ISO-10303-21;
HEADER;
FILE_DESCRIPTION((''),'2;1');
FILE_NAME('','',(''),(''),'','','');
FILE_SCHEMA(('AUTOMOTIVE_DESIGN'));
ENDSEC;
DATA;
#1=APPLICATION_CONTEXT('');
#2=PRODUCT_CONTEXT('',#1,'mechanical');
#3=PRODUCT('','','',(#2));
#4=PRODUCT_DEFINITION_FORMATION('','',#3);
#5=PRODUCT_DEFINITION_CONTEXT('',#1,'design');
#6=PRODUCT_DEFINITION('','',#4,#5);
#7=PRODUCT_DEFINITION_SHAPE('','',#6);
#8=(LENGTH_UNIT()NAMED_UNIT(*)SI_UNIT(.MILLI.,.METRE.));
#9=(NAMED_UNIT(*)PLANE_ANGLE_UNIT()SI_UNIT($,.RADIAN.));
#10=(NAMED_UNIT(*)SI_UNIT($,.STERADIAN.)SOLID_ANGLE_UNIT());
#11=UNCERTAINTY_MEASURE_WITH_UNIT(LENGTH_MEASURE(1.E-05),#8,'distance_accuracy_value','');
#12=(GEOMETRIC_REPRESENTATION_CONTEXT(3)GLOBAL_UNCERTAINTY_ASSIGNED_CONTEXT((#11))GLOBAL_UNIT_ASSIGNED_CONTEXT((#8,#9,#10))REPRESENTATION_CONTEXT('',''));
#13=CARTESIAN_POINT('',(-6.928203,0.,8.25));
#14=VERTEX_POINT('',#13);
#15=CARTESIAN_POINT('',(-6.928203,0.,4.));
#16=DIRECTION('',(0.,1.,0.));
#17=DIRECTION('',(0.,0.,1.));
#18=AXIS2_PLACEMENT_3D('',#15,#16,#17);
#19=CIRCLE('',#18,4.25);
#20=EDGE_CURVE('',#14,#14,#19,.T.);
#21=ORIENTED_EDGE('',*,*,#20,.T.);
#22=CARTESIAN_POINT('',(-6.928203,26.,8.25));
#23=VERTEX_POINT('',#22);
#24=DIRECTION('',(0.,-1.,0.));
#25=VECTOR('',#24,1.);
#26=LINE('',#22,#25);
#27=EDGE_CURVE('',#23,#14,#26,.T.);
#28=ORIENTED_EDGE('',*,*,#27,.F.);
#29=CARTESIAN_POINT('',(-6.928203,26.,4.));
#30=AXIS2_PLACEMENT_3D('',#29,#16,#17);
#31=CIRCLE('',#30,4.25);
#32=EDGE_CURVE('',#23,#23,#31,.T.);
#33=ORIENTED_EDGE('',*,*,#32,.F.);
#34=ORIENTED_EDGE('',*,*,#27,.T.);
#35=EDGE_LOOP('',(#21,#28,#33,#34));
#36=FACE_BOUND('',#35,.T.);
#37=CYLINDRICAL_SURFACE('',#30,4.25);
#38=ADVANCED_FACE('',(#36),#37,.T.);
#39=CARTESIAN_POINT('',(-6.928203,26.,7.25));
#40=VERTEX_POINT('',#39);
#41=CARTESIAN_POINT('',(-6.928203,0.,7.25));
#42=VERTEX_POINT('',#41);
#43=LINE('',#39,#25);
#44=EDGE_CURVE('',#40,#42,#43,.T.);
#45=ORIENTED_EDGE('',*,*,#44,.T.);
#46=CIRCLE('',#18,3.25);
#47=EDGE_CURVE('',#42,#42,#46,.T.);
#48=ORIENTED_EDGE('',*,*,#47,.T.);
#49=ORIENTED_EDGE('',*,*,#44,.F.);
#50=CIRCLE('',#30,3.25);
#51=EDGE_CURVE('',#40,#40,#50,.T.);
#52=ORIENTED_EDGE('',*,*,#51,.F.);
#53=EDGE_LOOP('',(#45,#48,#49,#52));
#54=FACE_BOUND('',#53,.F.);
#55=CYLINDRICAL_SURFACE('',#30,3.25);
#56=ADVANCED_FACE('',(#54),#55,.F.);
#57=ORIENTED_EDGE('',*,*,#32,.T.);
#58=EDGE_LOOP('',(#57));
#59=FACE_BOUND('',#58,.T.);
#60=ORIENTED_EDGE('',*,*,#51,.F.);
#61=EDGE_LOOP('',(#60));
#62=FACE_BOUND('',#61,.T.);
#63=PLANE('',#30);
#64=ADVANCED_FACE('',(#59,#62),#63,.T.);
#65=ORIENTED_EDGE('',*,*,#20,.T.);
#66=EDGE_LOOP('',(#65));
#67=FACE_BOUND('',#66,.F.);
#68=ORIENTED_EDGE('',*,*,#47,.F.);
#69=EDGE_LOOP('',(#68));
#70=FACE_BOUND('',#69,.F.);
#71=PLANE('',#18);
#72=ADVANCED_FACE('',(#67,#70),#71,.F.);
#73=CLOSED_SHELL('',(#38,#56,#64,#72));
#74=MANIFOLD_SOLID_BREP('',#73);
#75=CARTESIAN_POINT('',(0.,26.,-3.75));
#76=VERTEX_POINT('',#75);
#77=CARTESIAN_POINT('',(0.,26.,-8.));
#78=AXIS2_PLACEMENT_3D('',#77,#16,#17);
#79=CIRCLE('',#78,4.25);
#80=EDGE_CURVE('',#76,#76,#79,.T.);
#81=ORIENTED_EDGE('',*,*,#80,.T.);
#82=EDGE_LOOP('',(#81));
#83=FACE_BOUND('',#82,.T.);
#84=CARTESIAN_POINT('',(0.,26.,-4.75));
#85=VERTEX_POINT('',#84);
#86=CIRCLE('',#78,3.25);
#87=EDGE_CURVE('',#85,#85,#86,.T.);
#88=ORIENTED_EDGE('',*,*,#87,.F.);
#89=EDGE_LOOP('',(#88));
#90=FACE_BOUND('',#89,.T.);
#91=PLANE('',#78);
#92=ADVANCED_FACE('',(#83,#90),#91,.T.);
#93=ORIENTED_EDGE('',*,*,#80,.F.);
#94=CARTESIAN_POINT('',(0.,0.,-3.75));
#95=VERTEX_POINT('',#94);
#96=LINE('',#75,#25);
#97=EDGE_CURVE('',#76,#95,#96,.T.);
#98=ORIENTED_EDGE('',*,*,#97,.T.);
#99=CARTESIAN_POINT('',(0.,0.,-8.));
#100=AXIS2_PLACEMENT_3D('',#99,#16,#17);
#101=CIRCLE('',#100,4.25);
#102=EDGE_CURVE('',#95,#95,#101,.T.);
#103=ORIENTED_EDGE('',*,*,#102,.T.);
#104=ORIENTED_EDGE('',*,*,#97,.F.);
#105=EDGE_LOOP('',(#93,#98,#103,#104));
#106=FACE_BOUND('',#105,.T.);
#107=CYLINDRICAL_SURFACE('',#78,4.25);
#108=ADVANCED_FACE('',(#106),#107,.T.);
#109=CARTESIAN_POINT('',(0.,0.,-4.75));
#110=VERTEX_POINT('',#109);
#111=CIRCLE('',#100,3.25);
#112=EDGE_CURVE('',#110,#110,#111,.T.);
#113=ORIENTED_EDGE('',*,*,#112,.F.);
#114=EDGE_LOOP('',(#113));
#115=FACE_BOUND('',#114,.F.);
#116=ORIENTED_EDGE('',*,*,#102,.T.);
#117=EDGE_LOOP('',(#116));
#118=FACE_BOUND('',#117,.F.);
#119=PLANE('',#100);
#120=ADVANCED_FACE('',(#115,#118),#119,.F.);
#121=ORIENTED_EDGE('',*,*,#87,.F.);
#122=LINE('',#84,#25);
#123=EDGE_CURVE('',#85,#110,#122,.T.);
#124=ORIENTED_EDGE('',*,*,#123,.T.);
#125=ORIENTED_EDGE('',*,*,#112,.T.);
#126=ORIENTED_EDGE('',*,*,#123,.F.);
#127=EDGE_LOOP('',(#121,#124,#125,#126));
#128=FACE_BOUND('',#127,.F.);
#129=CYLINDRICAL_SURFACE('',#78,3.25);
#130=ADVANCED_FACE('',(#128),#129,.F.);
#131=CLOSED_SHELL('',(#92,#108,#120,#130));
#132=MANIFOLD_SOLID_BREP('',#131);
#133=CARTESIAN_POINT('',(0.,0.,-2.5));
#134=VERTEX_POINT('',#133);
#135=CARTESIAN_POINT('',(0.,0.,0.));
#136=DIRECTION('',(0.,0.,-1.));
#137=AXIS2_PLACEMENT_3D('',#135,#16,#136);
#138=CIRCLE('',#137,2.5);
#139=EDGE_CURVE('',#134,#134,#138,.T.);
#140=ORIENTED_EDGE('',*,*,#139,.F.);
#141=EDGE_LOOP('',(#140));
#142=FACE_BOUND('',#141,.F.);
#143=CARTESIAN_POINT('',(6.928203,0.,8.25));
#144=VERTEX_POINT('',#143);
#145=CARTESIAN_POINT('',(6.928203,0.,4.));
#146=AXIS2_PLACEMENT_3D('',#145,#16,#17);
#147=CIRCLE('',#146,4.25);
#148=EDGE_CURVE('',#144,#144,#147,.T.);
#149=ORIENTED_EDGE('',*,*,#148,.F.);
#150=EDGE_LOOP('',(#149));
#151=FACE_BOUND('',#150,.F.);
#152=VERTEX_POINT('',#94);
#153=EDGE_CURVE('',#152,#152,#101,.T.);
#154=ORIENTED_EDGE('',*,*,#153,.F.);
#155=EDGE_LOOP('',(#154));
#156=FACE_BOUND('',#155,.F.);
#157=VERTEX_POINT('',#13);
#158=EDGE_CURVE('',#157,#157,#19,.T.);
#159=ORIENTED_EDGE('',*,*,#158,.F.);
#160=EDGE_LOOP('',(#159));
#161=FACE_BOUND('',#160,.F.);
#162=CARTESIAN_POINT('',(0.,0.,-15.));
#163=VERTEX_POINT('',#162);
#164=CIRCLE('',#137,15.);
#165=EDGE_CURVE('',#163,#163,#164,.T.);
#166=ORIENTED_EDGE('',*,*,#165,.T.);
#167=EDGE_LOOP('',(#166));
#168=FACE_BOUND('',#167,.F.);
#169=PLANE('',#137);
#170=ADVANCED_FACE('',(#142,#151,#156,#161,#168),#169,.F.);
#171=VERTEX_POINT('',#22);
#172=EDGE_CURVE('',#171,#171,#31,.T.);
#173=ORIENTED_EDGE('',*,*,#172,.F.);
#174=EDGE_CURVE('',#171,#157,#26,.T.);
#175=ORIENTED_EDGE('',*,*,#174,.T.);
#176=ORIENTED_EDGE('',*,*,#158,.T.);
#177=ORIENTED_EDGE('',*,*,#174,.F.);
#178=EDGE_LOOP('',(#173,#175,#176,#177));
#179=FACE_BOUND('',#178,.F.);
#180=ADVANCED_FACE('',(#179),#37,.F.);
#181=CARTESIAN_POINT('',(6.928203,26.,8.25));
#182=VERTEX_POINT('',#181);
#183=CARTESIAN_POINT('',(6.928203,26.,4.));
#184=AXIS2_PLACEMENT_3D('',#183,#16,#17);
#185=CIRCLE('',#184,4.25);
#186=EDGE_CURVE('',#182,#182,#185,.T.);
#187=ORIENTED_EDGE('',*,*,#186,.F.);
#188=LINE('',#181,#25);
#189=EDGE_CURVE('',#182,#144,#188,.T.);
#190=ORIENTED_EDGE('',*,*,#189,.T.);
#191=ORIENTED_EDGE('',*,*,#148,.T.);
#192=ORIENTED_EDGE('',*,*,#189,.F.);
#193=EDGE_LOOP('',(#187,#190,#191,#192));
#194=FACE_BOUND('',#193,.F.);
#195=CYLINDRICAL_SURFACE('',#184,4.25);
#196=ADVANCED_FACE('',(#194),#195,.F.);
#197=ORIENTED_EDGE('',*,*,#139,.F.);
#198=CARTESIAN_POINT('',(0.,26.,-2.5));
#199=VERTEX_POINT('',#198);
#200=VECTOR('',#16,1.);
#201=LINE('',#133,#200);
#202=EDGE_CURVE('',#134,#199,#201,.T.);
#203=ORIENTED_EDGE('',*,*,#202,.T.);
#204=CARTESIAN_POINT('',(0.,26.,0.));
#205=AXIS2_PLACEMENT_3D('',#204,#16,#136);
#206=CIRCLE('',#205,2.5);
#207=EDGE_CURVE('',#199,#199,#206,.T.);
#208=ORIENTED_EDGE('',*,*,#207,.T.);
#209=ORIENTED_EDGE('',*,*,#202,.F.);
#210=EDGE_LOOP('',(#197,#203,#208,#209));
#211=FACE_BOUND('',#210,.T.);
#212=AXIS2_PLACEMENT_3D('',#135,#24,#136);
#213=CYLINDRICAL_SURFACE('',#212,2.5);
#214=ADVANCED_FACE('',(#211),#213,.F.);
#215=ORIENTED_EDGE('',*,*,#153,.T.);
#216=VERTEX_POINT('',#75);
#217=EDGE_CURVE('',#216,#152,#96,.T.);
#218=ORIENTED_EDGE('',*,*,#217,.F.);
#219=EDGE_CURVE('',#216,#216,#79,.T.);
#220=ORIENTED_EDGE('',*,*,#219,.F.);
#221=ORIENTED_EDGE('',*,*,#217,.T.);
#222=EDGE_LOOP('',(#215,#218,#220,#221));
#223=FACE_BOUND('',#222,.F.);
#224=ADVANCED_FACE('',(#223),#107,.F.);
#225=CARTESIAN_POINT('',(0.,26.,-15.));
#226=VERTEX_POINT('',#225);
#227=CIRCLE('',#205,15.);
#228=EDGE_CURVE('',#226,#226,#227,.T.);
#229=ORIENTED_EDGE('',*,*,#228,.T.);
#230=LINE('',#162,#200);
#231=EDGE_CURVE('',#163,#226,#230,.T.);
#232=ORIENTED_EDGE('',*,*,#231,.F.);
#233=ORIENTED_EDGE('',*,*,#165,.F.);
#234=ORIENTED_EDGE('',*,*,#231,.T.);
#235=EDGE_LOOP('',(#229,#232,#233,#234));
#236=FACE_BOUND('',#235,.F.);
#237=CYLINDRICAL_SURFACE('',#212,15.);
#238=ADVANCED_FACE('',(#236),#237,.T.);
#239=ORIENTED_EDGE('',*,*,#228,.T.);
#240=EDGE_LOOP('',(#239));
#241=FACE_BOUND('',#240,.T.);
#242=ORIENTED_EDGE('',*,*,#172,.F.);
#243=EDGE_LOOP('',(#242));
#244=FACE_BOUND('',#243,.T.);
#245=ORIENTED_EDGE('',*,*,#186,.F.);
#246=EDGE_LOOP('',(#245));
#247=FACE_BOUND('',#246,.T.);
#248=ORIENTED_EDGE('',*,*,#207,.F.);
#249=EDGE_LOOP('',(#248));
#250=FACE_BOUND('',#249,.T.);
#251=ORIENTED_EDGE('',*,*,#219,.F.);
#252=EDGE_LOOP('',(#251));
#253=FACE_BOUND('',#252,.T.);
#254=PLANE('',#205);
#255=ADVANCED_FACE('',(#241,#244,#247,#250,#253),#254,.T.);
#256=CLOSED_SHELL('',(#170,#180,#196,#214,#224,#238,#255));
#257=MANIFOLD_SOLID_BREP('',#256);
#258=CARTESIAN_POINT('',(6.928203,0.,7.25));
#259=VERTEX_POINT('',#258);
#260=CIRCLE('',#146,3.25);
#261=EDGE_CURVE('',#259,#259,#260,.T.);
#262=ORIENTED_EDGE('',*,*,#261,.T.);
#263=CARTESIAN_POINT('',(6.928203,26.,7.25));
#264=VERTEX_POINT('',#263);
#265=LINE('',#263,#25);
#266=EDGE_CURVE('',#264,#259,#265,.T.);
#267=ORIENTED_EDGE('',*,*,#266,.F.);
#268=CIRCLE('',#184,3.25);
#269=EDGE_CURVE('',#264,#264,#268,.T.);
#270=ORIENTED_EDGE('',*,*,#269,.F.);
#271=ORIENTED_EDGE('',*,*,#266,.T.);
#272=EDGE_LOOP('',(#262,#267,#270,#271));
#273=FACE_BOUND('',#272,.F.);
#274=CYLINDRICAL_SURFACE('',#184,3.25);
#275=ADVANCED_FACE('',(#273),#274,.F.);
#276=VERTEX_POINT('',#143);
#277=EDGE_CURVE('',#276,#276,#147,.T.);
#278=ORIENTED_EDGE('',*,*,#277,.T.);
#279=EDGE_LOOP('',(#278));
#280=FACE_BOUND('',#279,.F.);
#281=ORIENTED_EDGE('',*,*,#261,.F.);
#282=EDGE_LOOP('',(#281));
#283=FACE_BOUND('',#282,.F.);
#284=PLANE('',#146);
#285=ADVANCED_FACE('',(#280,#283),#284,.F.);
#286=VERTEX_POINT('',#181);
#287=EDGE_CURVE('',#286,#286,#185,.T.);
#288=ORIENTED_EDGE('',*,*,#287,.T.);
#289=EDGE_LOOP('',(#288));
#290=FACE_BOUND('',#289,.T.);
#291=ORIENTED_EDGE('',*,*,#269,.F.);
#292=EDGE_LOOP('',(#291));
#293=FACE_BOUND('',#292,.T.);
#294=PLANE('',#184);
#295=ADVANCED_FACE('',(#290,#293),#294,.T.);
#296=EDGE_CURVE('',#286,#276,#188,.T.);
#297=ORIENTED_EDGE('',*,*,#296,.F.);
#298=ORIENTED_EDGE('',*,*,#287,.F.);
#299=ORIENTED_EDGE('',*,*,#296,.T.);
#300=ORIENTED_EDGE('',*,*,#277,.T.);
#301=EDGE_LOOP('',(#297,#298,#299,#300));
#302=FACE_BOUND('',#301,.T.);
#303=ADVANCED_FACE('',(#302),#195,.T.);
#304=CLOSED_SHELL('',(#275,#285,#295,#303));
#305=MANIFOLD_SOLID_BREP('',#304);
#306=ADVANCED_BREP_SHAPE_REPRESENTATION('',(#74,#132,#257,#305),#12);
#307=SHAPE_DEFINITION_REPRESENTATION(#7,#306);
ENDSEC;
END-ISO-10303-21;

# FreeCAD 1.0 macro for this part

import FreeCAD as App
import Part
import Sketcher
from FreeCAD import Vector
Q = App.Units.Quantity

doc = App.newDocument("Part")
params = doc.addObject("Spreadsheet::Sheet", "Params")
for row, (alias, value) in enumerate([
    ("sketch1_diameter", "30 mm"),
    ("sketch1_diameter2", "5 mm"),
    ("pad1_length", "26 mm"),
    ("sketch2_diameter", "8.5 mm"),
    ("sketch3_diameter", "8.5 mm"),
    ("sketch3_diameter2", "6.5 mm"),
    ("pad2_length", "26 mm"),
    ("sketch4_diameter", "8.5 mm"),
    ("sketch4_diameter2", "6.5 mm"),
    ("pad3_length", "26 mm"),
    ("sketch5_diameter", "8.5 mm"),
    ("sketch5_diameter2", "6.5 mm"),
    ("pad4_length", "26 mm"),
], start=1):
    params.set(f"A{row}", alias)
    params.set(f"B{row}", "=" + value)
    params.setAlias(f"B{row}", alias)

body = doc.addObject("PartDesign::Body", "Body")

# Sketch on XZ plane
sketch1 = body.newObject("Sketcher::SketchObject", "Sketch")
sketch1.AttachmentSupport = (doc.getObject("XZ_Plane"), [""])
sketch1.MapMode = "FlatFace"
sketch1.addGeometry([
    Part.Circle(Vector(0, 0, 0), Vector(0, 0, 1), 15),
    Part.Circle(Vector(0, 0, 0), Vector(0, 0, 1), 2.5),
], False)
sketch1.addConstraint([
    Sketcher.Constraint("Coincident", 0, 3, -1, 1),
    Sketcher.Constraint("Coincident", 1, 3, -1, 1),
    Sketcher.Constraint("Diameter", 0, Q("30 mm")),
    Sketcher.Constraint("Diameter", 1, Q("5 mm")),
])
sketch1.setExpression("Constraints[2]", "Params.sketch1_diameter")
sketch1.setExpression("Constraints[3]", "Params.sketch1_diameter2")
pad1 = body.newObject("PartDesign::Pad", "Pad")
pad1.Profile = sketch1
pad1.setExpression("Length", "Params.pad1_length")
pad1.Reversed = True

# Sketch on XZ plane
sketch2 = body.newObject("Sketcher::SketchObject", "Sketch001")
sketch2.AttachmentSupport = (doc.getObject("XZ_Plane"), [""])
sketch2.MapMode = "FlatFace"
sketch2.AttachmentOffset = App.Placement(Vector(0, 0, -26), App.Rotation())
sketch2.addGeometry([
    Part.Circle(Vector(0, -8, 0), Vector(0, 0, 1), 4.2),
    Part.Circle(Vector(6.9, 4, 0), Vector(0, 0, 1), 4.2),
    Part.Circle(Vector(-6.9, 4, 0), Vector(0, 0, 1), 4.2),
], False)
sketch2.addConstraint([
    Sketcher.Constraint("Equal", 0, 1),
    Sketcher.Constraint("Equal", 1, 2),
    Sketcher.Constraint("Symmetric", 1, 3, 2, 3, -2),
    Sketcher.Constraint("PointOnObject", 0, 3, -2),
    Sketcher.Constraint("Diameter", 0, Q("8.5 mm")),
    Sketcher.Constraint("DistanceY", 0, 3, -1, 1, Q("8 mm")),
    Sketcher.Constraint("DistanceY", -1, 1, 1, 3, Q("4 mm")),
    Sketcher.Constraint("DistanceX", -1, 1, 1, 3, Q("6.928203 mm")),
])
sketch2.setExpression("Constraints[4]", "Params.sketch2_diameter")
pocket1 = body.newObject("PartDesign::Pocket", "Pocket")
pocket1.Profile = sketch2
pocket1.Type = "ThroughAll"
pocket1.Reversed = True
body2 = doc.addObject("PartDesign::Body", "Body001")

# Sketch on XZ plane
sketch3 = body2.newObject("Sketcher::SketchObject", "Sketch002")
sketch3.AttachmentSupport = (doc.getObject("XZ_Plane001"), [""])
sketch3.MapMode = "FlatFace"
sketch3.AttachmentOffset = App.Placement(Vector(0, 0, -26), App.Rotation())
sketch3.addGeometry([
    Part.Circle(Vector(6.9, 4, 0), Vector(0, 0, 1), 4.2),
    Part.Circle(Vector(6.9, 4, 0), Vector(0, 0, 1), 3.2),
], False)
sketch3.addConstraint([
    Sketcher.Constraint("Coincident", 1, 3, 0, 3),
    Sketcher.Constraint("Diameter", 0, Q("8.5 mm")),
    Sketcher.Constraint("Diameter", 1, Q("6.5 mm")),
    Sketcher.Constraint("DistanceY", -1, 1, 0, 3, Q("4 mm")),
    Sketcher.Constraint("DistanceX", -1, 1, 0, 3, Q("6.928203 mm")),
])
sketch3.setExpression("Constraints[1]", "Params.sketch3_diameter")
sketch3.setExpression("Constraints[2]", "Params.sketch3_diameter2")
pad2 = body2.newObject("PartDesign::Pad", "Pad001")
pad2.Profile = sketch3
pad2.setExpression("Length", "Params.pad2_length")
body3 = doc.addObject("PartDesign::Body", "Body002")

# Sketch on XZ plane
sketch4 = body3.newObject("Sketcher::SketchObject", "Sketch003")
sketch4.AttachmentSupport = (doc.getObject("XZ_Plane002"), [""])
sketch4.MapMode = "FlatFace"
sketch4.AttachmentOffset = App.Placement(Vector(0, 0, -26), App.Rotation())
sketch4.addGeometry([
    Part.Circle(Vector(-6.9, 4, 0), Vector(0, 0, 1), 4.2),
    Part.Circle(Vector(-6.9, 4, 0), Vector(0, 0, 1), 3.2),
], False)
sketch4.addConstraint([
    Sketcher.Constraint("Coincident", 1, 3, 0, 3),
    Sketcher.Constraint("Diameter", 0, Q("8.5 mm")),
    Sketcher.Constraint("Diameter", 1, Q("6.5 mm")),
    Sketcher.Constraint("DistanceY", -1, 1, 0, 3, Q("4 mm")),
    Sketcher.Constraint("DistanceX", 0, 3, -1, 1, Q("6.928203 mm")),
])
sketch4.setExpression("Constraints[1]", "Params.sketch4_diameter")
sketch4.setExpression("Constraints[2]", "Params.sketch4_diameter2")
pad3 = body3.newObject("PartDesign::Pad", "Pad002")
pad3.Profile = sketch4
pad3.setExpression("Length", "Params.pad3_length")
body4 = doc.addObject("PartDesign::Body", "Body003")

# Sketch on XZ plane
sketch5 = body4.newObject("Sketcher::SketchObject", "Sketch004")
sketch5.AttachmentSupport = (doc.getObject("XZ_Plane003"), [""])
sketch5.MapMode = "FlatFace"
sketch5.AttachmentOffset = App.Placement(Vector(0, 0, -26), App.Rotation())
sketch5.addGeometry([
    Part.Circle(Vector(0, -8, 0), Vector(0, 0, 1), 4.2),
    Part.Circle(Vector(0, -8, 0), Vector(0, 0, 1), 3.2),
], False)
sketch5.addConstraint([
    Sketcher.Constraint("Coincident", 1, 3, 0, 3),
    Sketcher.Constraint("PointOnObject", 0, 3, -2),
    Sketcher.Constraint("Diameter", 0, Q("8.5 mm")),
    Sketcher.Constraint("Diameter", 1, Q("6.5 mm")),
    Sketcher.Constraint("DistanceY", 0, 3, -1, 1, Q("8 mm")),
])
sketch5.setExpression("Constraints[2]", "Params.sketch5_diameter")
sketch5.setExpression("Constraints[3]", "Params.sketch5_diameter2")
pad4 = body4.newObject("PartDesign::Pad", "Pad003")
pad4.Profile = sketch5
pad4.setExpression("Length", "Params.pad4_length")

doc.recompute()
